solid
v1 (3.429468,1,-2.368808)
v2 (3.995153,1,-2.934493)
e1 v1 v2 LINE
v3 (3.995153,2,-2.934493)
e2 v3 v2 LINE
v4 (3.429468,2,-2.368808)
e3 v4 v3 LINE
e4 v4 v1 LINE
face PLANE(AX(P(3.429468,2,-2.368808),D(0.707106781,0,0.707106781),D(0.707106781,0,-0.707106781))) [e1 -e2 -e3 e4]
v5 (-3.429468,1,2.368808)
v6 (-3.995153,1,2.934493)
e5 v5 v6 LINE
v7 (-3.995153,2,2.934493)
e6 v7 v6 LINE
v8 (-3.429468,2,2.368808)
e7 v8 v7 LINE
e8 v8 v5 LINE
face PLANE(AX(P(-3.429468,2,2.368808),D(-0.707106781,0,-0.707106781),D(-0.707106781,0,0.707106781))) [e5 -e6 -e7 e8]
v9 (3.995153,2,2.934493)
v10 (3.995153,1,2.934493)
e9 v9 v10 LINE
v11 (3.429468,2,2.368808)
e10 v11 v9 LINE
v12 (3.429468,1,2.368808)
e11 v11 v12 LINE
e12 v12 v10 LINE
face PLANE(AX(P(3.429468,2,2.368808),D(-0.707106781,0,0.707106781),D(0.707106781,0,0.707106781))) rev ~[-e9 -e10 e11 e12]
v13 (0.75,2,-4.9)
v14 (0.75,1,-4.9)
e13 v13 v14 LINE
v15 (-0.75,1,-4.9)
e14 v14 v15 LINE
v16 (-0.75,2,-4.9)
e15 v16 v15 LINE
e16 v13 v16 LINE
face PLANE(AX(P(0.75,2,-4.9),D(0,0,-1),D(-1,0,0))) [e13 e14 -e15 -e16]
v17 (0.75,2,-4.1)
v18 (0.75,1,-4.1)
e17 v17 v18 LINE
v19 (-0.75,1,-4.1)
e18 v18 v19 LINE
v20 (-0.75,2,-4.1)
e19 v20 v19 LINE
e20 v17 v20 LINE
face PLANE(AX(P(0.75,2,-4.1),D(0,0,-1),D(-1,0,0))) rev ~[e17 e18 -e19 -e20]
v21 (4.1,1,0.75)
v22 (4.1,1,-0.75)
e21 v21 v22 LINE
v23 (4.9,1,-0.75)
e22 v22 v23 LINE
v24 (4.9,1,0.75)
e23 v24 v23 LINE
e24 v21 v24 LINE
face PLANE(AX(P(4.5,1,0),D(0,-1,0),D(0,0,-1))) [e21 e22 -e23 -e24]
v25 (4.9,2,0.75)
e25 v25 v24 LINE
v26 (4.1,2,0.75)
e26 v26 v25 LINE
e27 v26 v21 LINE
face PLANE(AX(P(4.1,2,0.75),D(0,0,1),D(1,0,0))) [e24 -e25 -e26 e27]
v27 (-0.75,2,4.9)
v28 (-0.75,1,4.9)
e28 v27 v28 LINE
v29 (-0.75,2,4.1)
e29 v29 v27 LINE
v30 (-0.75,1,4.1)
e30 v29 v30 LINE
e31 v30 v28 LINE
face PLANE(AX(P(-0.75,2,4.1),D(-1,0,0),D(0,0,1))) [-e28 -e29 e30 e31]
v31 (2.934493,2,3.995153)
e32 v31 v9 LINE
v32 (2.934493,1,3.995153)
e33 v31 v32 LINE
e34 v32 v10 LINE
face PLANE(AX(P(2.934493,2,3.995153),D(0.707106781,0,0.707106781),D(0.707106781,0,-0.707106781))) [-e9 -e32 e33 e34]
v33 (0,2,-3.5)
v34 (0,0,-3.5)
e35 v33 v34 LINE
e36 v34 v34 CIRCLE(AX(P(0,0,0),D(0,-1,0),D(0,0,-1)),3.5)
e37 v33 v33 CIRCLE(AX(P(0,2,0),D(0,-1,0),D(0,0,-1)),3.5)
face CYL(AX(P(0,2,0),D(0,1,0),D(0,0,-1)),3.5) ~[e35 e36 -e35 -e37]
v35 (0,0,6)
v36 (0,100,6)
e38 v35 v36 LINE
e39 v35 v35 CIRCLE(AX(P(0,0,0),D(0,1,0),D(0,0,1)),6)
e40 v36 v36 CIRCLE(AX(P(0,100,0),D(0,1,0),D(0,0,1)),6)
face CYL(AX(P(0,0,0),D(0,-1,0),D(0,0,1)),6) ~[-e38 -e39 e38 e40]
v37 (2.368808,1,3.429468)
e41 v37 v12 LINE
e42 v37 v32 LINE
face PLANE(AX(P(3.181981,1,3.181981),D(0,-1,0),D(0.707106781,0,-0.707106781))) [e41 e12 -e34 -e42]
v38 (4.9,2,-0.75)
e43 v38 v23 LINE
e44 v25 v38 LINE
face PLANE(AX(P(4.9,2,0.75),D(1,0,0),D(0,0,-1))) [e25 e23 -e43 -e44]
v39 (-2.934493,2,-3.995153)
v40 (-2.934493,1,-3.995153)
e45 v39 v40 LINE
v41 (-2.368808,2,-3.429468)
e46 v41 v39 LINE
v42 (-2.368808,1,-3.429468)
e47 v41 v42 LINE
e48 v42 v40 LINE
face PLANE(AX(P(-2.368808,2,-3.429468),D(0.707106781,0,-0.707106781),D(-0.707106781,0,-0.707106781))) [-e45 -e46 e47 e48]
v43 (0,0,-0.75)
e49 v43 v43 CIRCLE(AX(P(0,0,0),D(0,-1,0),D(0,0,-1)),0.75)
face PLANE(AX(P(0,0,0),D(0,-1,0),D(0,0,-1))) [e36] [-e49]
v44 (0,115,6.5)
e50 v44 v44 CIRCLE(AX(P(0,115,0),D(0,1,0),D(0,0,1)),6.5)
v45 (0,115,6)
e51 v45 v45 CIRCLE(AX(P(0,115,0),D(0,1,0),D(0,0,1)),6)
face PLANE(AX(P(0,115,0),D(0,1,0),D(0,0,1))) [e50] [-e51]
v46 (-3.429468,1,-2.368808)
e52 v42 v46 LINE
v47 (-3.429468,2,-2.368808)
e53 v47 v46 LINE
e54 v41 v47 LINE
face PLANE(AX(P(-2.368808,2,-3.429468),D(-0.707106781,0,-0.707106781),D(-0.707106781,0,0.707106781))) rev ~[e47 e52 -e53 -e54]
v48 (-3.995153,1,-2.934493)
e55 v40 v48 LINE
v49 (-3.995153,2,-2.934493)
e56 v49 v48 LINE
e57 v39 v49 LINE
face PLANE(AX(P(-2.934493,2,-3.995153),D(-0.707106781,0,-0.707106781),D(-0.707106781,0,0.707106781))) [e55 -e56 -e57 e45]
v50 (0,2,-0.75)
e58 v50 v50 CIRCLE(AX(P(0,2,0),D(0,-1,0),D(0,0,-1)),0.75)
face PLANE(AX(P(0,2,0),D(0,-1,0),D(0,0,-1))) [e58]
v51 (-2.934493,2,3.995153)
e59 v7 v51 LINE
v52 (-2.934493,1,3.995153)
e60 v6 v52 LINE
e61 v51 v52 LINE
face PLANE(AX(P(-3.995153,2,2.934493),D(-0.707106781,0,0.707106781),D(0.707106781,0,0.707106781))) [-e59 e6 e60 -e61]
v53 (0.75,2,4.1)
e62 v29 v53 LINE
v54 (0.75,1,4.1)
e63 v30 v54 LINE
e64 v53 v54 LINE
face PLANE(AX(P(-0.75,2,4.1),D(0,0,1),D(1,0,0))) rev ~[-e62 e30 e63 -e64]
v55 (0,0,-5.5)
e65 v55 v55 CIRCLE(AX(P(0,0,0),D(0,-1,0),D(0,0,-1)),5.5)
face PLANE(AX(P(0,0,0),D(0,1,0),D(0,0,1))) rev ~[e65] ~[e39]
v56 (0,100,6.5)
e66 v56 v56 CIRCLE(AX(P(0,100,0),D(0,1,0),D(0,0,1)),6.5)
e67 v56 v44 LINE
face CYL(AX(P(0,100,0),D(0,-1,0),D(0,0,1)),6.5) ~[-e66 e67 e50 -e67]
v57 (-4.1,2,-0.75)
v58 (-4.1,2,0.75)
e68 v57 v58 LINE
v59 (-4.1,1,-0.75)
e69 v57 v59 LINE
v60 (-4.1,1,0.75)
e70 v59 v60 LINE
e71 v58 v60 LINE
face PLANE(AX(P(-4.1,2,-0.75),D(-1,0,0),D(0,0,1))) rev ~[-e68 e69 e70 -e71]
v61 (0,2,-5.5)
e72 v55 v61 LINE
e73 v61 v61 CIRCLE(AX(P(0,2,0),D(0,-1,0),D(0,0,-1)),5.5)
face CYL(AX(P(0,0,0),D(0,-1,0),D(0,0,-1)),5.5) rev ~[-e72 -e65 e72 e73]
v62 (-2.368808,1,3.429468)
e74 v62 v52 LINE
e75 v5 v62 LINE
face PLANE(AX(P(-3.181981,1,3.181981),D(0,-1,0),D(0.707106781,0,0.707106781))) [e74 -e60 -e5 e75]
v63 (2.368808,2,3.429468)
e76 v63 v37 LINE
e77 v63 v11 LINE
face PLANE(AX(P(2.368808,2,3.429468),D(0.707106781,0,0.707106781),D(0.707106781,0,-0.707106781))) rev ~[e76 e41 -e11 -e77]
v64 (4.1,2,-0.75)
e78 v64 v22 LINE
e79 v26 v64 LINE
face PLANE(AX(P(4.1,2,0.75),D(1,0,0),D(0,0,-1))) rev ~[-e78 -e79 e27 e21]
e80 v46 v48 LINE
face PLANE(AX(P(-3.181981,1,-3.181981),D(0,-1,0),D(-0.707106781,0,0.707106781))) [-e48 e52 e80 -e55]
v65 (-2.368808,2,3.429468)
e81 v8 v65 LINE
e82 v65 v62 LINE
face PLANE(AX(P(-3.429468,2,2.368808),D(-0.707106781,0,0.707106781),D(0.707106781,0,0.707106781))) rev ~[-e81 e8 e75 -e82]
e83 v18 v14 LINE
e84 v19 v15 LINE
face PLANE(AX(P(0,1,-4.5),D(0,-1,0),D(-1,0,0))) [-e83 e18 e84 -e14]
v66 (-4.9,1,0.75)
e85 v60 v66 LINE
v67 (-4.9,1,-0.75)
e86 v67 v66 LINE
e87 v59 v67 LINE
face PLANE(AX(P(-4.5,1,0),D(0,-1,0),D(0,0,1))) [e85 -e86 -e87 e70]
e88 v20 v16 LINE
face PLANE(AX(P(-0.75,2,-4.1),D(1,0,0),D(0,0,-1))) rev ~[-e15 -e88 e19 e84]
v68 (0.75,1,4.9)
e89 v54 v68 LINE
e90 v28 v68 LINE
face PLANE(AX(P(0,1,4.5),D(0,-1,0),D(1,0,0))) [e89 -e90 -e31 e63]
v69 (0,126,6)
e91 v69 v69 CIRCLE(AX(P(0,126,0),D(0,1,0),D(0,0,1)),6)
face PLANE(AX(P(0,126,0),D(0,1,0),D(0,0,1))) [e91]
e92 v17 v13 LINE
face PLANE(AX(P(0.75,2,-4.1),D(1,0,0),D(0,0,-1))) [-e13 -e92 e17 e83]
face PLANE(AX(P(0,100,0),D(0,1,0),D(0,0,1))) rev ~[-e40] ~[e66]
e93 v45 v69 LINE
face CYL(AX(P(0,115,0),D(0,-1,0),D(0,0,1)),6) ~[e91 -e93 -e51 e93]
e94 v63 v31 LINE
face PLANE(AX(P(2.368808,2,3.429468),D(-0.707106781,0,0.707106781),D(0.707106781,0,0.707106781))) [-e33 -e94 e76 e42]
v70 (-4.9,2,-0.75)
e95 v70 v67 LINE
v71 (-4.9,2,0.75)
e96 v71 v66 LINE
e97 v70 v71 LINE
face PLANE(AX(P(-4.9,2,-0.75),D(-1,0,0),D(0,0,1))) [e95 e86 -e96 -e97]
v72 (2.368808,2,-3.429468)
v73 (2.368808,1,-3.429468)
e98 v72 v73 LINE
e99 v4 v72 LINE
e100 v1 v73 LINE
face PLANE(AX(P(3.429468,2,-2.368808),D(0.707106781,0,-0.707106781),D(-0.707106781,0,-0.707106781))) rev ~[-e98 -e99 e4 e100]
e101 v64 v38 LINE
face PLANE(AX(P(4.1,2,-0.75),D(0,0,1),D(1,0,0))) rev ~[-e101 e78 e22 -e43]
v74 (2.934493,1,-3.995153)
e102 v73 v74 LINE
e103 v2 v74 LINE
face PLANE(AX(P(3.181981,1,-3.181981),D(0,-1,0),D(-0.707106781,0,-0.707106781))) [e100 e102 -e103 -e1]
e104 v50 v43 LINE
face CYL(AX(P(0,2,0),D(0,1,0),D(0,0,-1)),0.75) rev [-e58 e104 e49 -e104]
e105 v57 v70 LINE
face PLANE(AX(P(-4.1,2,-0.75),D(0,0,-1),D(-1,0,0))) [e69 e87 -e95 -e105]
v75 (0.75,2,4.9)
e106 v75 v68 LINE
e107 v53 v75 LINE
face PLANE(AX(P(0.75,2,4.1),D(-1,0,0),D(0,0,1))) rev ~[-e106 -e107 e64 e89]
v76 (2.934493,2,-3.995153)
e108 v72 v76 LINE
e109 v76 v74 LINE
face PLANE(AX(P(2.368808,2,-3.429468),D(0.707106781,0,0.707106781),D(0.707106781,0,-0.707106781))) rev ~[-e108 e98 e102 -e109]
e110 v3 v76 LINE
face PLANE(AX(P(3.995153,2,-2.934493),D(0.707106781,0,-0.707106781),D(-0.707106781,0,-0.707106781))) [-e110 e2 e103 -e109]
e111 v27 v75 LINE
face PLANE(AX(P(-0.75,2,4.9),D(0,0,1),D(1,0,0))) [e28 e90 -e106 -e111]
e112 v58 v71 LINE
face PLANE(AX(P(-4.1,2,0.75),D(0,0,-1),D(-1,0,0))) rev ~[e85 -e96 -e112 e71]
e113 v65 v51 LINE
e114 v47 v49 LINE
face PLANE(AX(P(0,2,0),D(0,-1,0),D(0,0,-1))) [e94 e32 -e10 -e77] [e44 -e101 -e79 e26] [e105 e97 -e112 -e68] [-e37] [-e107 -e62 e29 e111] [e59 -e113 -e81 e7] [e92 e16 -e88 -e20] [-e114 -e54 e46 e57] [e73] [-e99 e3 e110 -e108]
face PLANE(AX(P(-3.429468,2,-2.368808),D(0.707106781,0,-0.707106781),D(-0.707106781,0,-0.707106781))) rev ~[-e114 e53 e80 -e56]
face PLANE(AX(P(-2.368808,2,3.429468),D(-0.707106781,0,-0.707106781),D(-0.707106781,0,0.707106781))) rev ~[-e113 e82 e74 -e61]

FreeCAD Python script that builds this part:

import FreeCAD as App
import Part
import Sketcher

V = App.Vector
Q = App.Units.Quantity


def add_polygon(sketch, points):
    """Adds a closed chain of lines whose ends are joined by coincident constraints."""
    first, n = sketch.GeometryCount, len(points)
    for a, b in zip(points, points[1:] + points[:1]):
        sketch.addGeometry(Part.LineSegment(App.Vector(*a, 0), App.Vector(*b, 0)), False)
    for i in range(n):
        sketch.addConstraint(Sketcher.Constraint("Coincident", first + i, 2, first + (i + 1) % n, 1))

doc = App.newDocument("Part")
body = doc.addObject("PartDesign::Body", "Body")

sketch1 = doc.addObject("Sketcher::SketchObject", "Sketch")
body.addObject(sketch1)
sketch1.AttachmentSupport = (doc.XZ_Plane, [""])
sketch1.MapMode = "FlatFace"
sketch1.addGeometry(Part.Circle(V(0, 0, 0), V(0, 0, 1), 6), False)
sketch1.addConstraint([
    Sketcher.Constraint("Coincident", 0, 3, -1, 1),
    Sketcher.Constraint("Diameter", 0, Q("12 mm")),
])
pad1 = doc.addObject("PartDesign::Pad", "Pad")
body.addObject(pad1)
pad1.Profile = sketch1
pad1.Length = 100
pad1.Reversed = True

sketch2 = doc.addObject("Sketcher::SketchObject", "Sketch001")
body.addObject(sketch2)
sketch2.AttachmentSupport = (doc.XZ_Plane, [""])
sketch2.MapMode = "FlatFace"
sketch2.AttachmentOffset = App.Placement(V(0, 0, -100), App.Rotation())
sketch2.addGeometry(Part.Circle(V(0, 0, 0), V(0, 0, 1), 6), False)
sketch2.addConstraint([
    Sketcher.Constraint("Coincident", 0, 3, -1, 1),
    Sketcher.Constraint("Diameter", 0, Q("13 mm")),
])
pad2 = doc.addObject("PartDesign::Pad", "Pad001")
body.addObject(pad2)
pad2.Profile = sketch2
pad2.Length = 15
pad2.Reversed = True

sketch3 = doc.addObject("Sketcher::SketchObject", "Sketch002")
body.addObject(sketch3)
sketch3.AttachmentSupport = (doc.XZ_Plane, [""])
sketch3.MapMode = "FlatFace"
sketch3.AttachmentOffset = App.Placement(V(0, 0, -115), App.Rotation())
sketch3.addGeometry(Part.Circle(V(0, 0, 0), V(0, 0, 1), 6), False)
sketch3.addConstraint([
    Sketcher.Constraint("Coincident", 0, 3, -1, 1),
    Sketcher.Constraint("Diameter", 0, Q("12 mm")),
])
pad3 = doc.addObject("PartDesign::Pad", "Pad002")
body.addObject(pad3)
pad3.Profile = sketch3
pad3.Length = 11
pad3.Reversed = True

sketch4 = doc.addObject("Sketcher::SketchObject", "Sketch003")
body.addObject(sketch4)
sketch4.AttachmentSupport = (doc.XZ_Plane, [""])
sketch4.MapMode = "FlatFace"
sketch4.addGeometry(Part.Circle(V(0, 0, 0), V(0, 0, 1), 6), False)
sketch4.addConstraint([
    Sketcher.Constraint("Coincident", 0, 3, -1, 1),
    Sketcher.Constraint("Diameter", 0, Q("11 mm")),
])
pocket1 = doc.addObject("PartDesign::Pocket", "Pocket")
body.addObject(pocket1)
pocket1.Profile = sketch4
pocket1.Length = 2

sketch5 = doc.addObject("Sketcher::SketchObject", "Sketch004")
body.addObject(sketch5)
sketch5.AttachmentSupport = (doc.XZ_Plane, [""])
sketch5.MapMode = "FlatFace"
sketch5.AttachmentOffset = App.Placement(V(0, 0, -2), App.Rotation())
sketch5.addGeometry([
    Part.Circle(V(0, 0, 0), V(0, 0, 1), 3.5),
    Part.Circle(V(0, 0, 0), V(0, 0, 1), 0.8),
], False)
sketch5.addConstraint([
    Sketcher.Constraint("Coincident", 0, 3, -1, 1),
    Sketcher.Constraint("Coincident", 1, 3, -1, 1),
    Sketcher.Constraint("Diameter", 0, Q("7 mm")),
    Sketcher.Constraint("Diameter", 1, Q("1.5 mm")),
])
pad4 = doc.addObject("PartDesign::Pad", "Pad003")
body.addObject(pad4)
pad4.Profile = sketch5
pad4.Length = 2

sketch6 = doc.addObject("Sketcher::SketchObject", "Sketch005")
body.addObject(sketch6)
sketch6.AttachmentSupport = (doc.XZ_Plane, [""])
sketch6.MapMode = "FlatFace"
sketch6.AttachmentOffset = App.Placement(V(0, 0, -2), App.Rotation())
add_polygon(sketch6, [(-0.8, 4.9), (-0.8, 4.1), (0.8, 4.1), (0.8, 4.9)])
sketch6.addConstraint([
    Sketcher.Constraint("Vertical", 0),
    Sketcher.Constraint("Horizontal", 1),
    Sketcher.Constraint("Vertical", 2),
    Sketcher.Constraint("Horizontal", 3),
    Sketcher.Constraint("DistanceX", 1, 1, 1, 2, Q("1.5 mm")),
    Sketcher.Constraint("DistanceY", 0, 2, 0, 1, Q("0.8 mm")),
    Sketcher.Constraint("DistanceY", -1, 1, 0, 2, Q("4.1 mm")),
    Sketcher.Constraint("DistanceX", 0, 2, -1, 1, Q("0.75 mm")),
])
pad5 = doc.addObject("PartDesign::Pad", "Pad004")
body.addObject(pad5)
pad5.Profile = sketch6
pad5.Length = 1
doc.recompute()

polarpattern = doc.addObject("PartDesign::PolarPattern", "PolarPattern")
body.addObject(polarpattern)
polarpattern.Originals = [pad5]
polarpattern.Axis = (doc.Y_Axis, [""])
polarpattern.Angle = 360
polarpattern.Occurrences = 8
body.Tip = polarpattern

doc.recompute()
